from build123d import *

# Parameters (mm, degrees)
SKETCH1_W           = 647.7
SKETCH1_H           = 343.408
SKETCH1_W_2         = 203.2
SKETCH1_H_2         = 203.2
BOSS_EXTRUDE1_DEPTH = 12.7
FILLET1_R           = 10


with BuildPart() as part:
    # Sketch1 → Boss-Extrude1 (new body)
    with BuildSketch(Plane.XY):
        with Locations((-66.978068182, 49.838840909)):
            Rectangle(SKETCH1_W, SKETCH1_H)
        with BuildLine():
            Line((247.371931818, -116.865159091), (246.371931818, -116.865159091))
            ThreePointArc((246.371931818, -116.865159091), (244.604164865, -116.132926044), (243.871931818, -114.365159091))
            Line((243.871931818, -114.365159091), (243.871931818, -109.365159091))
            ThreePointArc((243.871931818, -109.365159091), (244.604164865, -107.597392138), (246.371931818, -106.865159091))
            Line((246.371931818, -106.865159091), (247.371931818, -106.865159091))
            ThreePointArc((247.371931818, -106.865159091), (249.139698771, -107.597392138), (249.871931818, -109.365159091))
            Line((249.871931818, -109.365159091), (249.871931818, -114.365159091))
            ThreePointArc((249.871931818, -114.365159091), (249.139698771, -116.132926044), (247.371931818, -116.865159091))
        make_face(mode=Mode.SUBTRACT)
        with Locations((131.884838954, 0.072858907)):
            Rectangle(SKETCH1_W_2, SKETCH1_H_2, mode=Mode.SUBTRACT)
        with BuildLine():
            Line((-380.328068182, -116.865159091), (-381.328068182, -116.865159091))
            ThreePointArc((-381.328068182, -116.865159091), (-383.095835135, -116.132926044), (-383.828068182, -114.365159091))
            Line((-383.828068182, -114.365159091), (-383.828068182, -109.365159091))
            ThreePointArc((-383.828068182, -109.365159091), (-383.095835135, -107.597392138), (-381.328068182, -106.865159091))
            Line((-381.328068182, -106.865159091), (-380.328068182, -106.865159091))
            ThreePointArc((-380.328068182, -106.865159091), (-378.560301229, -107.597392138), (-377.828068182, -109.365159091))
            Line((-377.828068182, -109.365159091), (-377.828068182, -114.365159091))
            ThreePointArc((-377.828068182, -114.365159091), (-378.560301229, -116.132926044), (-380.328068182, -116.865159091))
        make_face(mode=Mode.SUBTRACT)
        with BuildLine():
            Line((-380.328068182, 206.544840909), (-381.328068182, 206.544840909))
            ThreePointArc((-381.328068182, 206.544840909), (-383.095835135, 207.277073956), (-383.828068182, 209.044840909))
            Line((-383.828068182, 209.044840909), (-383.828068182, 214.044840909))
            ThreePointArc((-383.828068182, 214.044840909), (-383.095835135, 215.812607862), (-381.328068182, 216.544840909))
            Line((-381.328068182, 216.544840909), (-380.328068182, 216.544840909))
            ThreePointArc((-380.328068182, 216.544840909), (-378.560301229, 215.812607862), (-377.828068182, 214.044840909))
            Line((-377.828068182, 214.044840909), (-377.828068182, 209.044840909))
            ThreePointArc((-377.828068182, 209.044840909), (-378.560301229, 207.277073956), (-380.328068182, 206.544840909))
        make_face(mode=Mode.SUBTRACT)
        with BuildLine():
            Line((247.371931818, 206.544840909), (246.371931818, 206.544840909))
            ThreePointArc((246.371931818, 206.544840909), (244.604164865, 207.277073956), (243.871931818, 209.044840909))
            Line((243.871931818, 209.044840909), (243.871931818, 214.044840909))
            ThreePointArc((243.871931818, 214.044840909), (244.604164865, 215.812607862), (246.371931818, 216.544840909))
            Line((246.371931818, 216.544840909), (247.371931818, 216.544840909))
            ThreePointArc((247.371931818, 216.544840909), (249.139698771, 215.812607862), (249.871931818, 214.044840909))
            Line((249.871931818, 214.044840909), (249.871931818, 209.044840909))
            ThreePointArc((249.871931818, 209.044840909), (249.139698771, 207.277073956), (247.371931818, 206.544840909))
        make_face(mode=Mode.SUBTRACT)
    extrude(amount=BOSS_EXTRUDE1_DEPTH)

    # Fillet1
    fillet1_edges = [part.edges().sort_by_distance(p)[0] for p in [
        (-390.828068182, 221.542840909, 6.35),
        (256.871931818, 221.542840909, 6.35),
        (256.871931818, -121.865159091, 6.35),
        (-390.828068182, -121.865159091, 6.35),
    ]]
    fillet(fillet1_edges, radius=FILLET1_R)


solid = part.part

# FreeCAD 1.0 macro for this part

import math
import FreeCAD as App
import Part
import Sketcher
Q = App.Units.Quantity


def edges_at(feature, points):
    """Names of the edges that pass closest to the given points."""
    edges = feature.Shape.Edges
    near = lambda p: min(range(len(edges)), key=lambda i: edges[i].distToShape(Part.Vertex(*p))[0])
    return sorted({f"Edge{near(p) + 1}" for p in points})


def add_polygon(sketch, points):
    """Adds a closed chain of lines whose ends are joined by coincident constraints."""
    first, n = sketch.GeometryCount, len(points)
    for a, b in zip(points, points[1:] + points[:1]):
        sketch.addGeometry(Part.LineSegment(App.Vector(*a, 0), App.Vector(*b, 0)), False)
    for i in range(n):
        sketch.addConstraint(Sketcher.Constraint("Coincident", first + i, 2, first + (i + 1) % n, 1))

doc = App.newDocument("Part")
body = doc.addObject("PartDesign::Body", "Body")

# Sketch on XY plane
sketch1 = body.newObject("Sketcher::SketchObject", "Sketch")
sketch1.AttachmentSupport = (doc.getObject("XY_Plane"), [""])
sketch1.MapMode = "FlatFace"
add_polygon(sketch1, [(-390.8, 221.5), (-390.8, -121.9), (256.9, -121.9), (256.9, 221.5)])  # lines 0-3
sketch1.addGeometry(Part.ArcOfCircle(Part.Circle(App.Vector(-380.3, -114.4, 0), App.Vector(0, 0, 1), 2.5), math.radians(-90), math.radians(0)), False)  # 4
sketch1.addGeometry(Part.LineSegment(App.Vector(-380.3, -116.9, 0), App.Vector(-381.3, -116.9, 0)), False)  # 5
sketch1.addGeometry(Part.ArcOfCircle(Part.Circle(App.Vector(-381.3, -114.4, 0), App.Vector(0, 0, 1), 2.5), math.radians(180), math.radians(270)), False)  # 6
sketch1.addGeometry(Part.LineSegment(App.Vector(-383.8, -114.4, 0), App.Vector(-383.8, -109.4, 0)), False)  # 7
sketch1.addGeometry(Part.ArcOfCircle(Part.Circle(App.Vector(-381.3, -109.4, 0), App.Vector(0, 0, 1), 2.5), math.radians(90), math.radians(180)), False)  # 8
sketch1.addGeometry(Part.LineSegment(App.Vector(-381.3, -106.9, 0), App.Vector(-380.3, -106.9, 0)), False)  # 9
sketch1.addGeometry(Part.ArcOfCircle(Part.Circle(App.Vector(-380.3, -109.4, 0), App.Vector(0, 0, 1), 2.5), math.radians(0), math.radians(90)), False)  # 10
sketch1.addGeometry(Part.LineSegment(App.Vector(-377.8, -109.4, 0), App.Vector(-377.8, -114.4, 0)), False)  # 11
sketch1.addGeometry(Part.ArcOfCircle(Part.Circle(App.Vector(247.4, -114.4, 0), App.Vector(0, 0, 1), 2.5), math.radians(-90), math.radians(0)), False)  # 12
sketch1.addGeometry(Part.LineSegment(App.Vector(247.4, -116.9, 0), App.Vector(246.4, -116.9, 0)), False)  # 13
sketch1.addGeometry(Part.ArcOfCircle(Part.Circle(App.Vector(246.4, -114.4, 0), App.Vector(0, 0, 1), 2.5), math.radians(180), math.radians(270)), False)  # 14
sketch1.addGeometry(Part.LineSegment(App.Vector(243.9, -114.4, 0), App.Vector(243.9, -109.4, 0)), False)  # 15
sketch1.addGeometry(Part.ArcOfCircle(Part.Circle(App.Vector(246.4, -109.4, 0), App.Vector(0, 0, 1), 2.5), math.radians(90), math.radians(180)), False)  # 16
sketch1.addGeometry(Part.LineSegment(App.Vector(246.4, -106.9, 0), App.Vector(247.4, -106.9, 0)), False)  # 17
sketch1.addGeometry(Part.ArcOfCircle(Part.Circle(App.Vector(247.4, -109.4, 0), App.Vector(0, 0, 1), 2.5), math.radians(0), math.radians(90)), False)  # 18
sketch1.addGeometry(Part.LineSegment(App.Vector(249.9, -109.4, 0), App.Vector(249.9, -114.4, 0)), False)  # 19
add_polygon(sketch1, [(233.5, -101.5), (30.3, -101.5), (30.3, 101.7), (233.5, 101.7)])  # lines 20-23
sketch1.addGeometry(Part.ArcOfCircle(Part.Circle(App.Vector(-380.3, 209, 0), App.Vector(0, 0, 1), 2.5), math.radians(-90), math.radians(0)), False)  # 24
sketch1.addGeometry(Part.LineSegment(App.Vector(-380.3, 206.5, 0), App.Vector(-381.3, 206.5, 0)), False)  # 25
sketch1.addGeometry(Part.ArcOfCircle(Part.Circle(App.Vector(-381.3, 209, 0), App.Vector(0, 0, 1), 2.5), math.radians(180), math.radians(270)), False)  # 26
sketch1.addGeometry(Part.LineSegment(App.Vector(-383.8, 209, 0), App.Vector(-383.8, 214, 0)), False)  # 27
sketch1.addGeometry(Part.ArcOfCircle(Part.Circle(App.Vector(-381.3, 214, 0), App.Vector(0, 0, 1), 2.5), math.radians(90), math.radians(180)), False)  # 28
sketch1.addGeometry(Part.LineSegment(App.Vector(-381.3, 216.5, 0), App.Vector(-380.3, 216.5, 0)), False)  # 29
sketch1.addGeometry(Part.ArcOfCircle(Part.Circle(App.Vector(-380.3, 214, 0), App.Vector(0, 0, 1), 2.5), math.radians(0), math.radians(90)), False)  # 30
sketch1.addGeometry(Part.LineSegment(App.Vector(-377.8, 214, 0), App.Vector(-377.8, 209, 0)), False)  # 31
sketch1.addGeometry(Part.ArcOfCircle(Part.Circle(App.Vector(247.4, 209, 0), App.Vector(0, 0, 1), 2.5), math.radians(-90), math.radians(0)), False)  # 32
sketch1.addGeometry(Part.LineSegment(App.Vector(247.4, 206.5, 0), App.Vector(246.4, 206.5, 0)), False)  # 33
sketch1.addGeometry(Part.ArcOfCircle(Part.Circle(App.Vector(246.4, 209, 0), App.Vector(0, 0, 1), 2.5), math.radians(180), math.radians(270)), False)  # 34
sketch1.addGeometry(Part.LineSegment(App.Vector(243.9, 209, 0), App.Vector(243.9, 214, 0)), False)  # 35
sketch1.addGeometry(Part.ArcOfCircle(Part.Circle(App.Vector(246.4, 214, 0), App.Vector(0, 0, 1), 2.5), math.radians(90), math.radians(180)), False)  # 36
sketch1.addGeometry(Part.LineSegment(App.Vector(246.4, 216.5, 0), App.Vector(247.4, 216.5, 0)), False)  # 37
sketch1.addGeometry(Part.ArcOfCircle(Part.Circle(App.Vector(247.4, 214, 0), App.Vector(0, 0, 1), 2.5), math.radians(0), math.radians(90)), False)  # 38
sketch1.addGeometry(Part.LineSegment(App.Vector(249.9, 214, 0), App.Vector(249.9, 209, 0)), False)  # 39
sketch1.addConstraint(Sketcher.Constraint("Tangent", 4, 1, 5, 1))
sketch1.addConstraint(Sketcher.Constraint("Tangent", 5, 2, 6, 2))
sketch1.addConstraint(Sketcher.Constraint("Tangent", 6, 1, 7, 1))
sketch1.addConstraint(Sketcher.Constraint("Tangent", 7, 2, 8, 2))
sketch1.addConstraint(Sketcher.Constraint("Tangent", 8, 1, 9, 1))
sketch1.addConstraint(Sketcher.Constraint("Tangent", 9, 2, 10, 2))
sketch1.addConstraint(Sketcher.Constraint("Tangent", 10, 1, 11, 1))
sketch1.addConstraint(Sketcher.Constraint("Tangent", 11, 2, 4, 2))
sketch1.addConstraint(Sketcher.Constraint("Tangent", 12, 1, 13, 1))
sketch1.addConstraint(Sketcher.Constraint("Tangent", 13, 2, 14, 2))
sketch1.addConstraint(Sketcher.Constraint("Tangent", 14, 1, 15, 1))
sketch1.addConstraint(Sketcher.Constraint("Tangent", 15, 2, 16, 2))
sketch1.addConstraint(Sketcher.Constraint("Tangent", 16, 1, 17, 1))
sketch1.addConstraint(Sketcher.Constraint("Tangent", 17, 2, 18, 2))
sketch1.addConstraint(Sketcher.Constraint("Tangent", 18, 1, 19, 1))
sketch1.addConstraint(Sketcher.Constraint("Tangent", 19, 2, 12, 2))
sketch1.addConstraint(Sketcher.Constraint("Tangent", 24, 1, 25, 1))
sketch1.addConstraint(Sketcher.Constraint("Tangent", 25, 2, 26, 2))
sketch1.addConstraint(Sketcher.Constraint("Tangent", 26, 1, 27, 1))
sketch1.addConstraint(Sketcher.Constraint("Tangent", 27, 2, 28, 2))
sketch1.addConstraint(Sketcher.Constraint("Tangent", 28, 1, 29, 1))
sketch1.addConstraint(Sketcher.Constraint("Tangent", 29, 2, 30, 2))
sketch1.addConstraint(Sketcher.Constraint("Tangent", 30, 1, 31, 1))
sketch1.addConstraint(Sketcher.Constraint("Tangent", 31, 2, 24, 2))
sketch1.addConstraint(Sketcher.Constraint("Tangent", 32, 1, 33, 1))
sketch1.addConstraint(Sketcher.Constraint("Tangent", 33, 2, 34, 2))
sketch1.addConstraint(Sketcher.Constraint("Tangent", 34, 1, 35, 1))
sketch1.addConstraint(Sketcher.Constraint("Tangent", 35, 2, 36, 2))
sketch1.addConstraint(Sketcher.Constraint("Tangent", 36, 1, 37, 1))
sketch1.addConstraint(Sketcher.Constraint("Tangent", 37, 2, 38, 2))
sketch1.addConstraint(Sketcher.Constraint("Tangent", 38, 1, 39, 1))
sketch1.addConstraint(Sketcher.Constraint("Tangent", 39, 2, 32, 2))
sketch1.addConstraint(Sketcher.Constraint("Vertical", 0))
sketch1.addConstraint(Sketcher.Constraint("Horizontal", 1))
sketch1.addConstraint(Sketcher.Constraint("Vertical", 2))
sketch1.addConstraint(Sketcher.Constraint("Horizontal", 3))
sketch1.addConstraint(Sketcher.Constraint("Horizontal", 5))
sketch1.addConstraint(Sketcher.Constraint("Vertical", 7))
sketch1.addConstraint(Sketcher.Constraint("Horizontal", 9))
sketch1.addConstraint(Sketcher.Constraint("Vertical", 11))
sketch1.addConstraint(Sketcher.Constraint("Horizontal", 13))
sketch1.addConstraint(Sketcher.Constraint("Vertical", 15))
sketch1.addConstraint(Sketcher.Constraint("Horizontal", 17))
sketch1.addConstraint(Sketcher.Constraint("Vertical", 19))
sketch1.addConstraint(Sketcher.Constraint("Horizontal", 20))
sketch1.addConstraint(Sketcher.Constraint("Vertical", 21))
sketch1.addConstraint(Sketcher.Constraint("Horizontal", 22))
sketch1.addConstraint(Sketcher.Constraint("Vertical", 23))
sketch1.addConstraint(Sketcher.Constraint("Horizontal", 25))
sketch1.addConstraint(Sketcher.Constraint("Vertical", 27))
sketch1.addConstraint(Sketcher.Constraint("Horizontal", 29))
sketch1.addConstraint(Sketcher.Constraint("Vertical", 31))
sketch1.addConstraint(Sketcher.Constraint("Horizontal", 33))
sketch1.addConstraint(Sketcher.Constraint("Vertical", 35))
sketch1.addConstraint(Sketcher.Constraint("Horizontal", 37))
sketch1.addConstraint(Sketcher.Constraint("Vertical", 39))
sketch1.addConstraint(Sketcher.Constraint("Equal", 4, 6))
sketch1.addConstraint(Sketcher.Constraint("Equal", 6, 8))
sketch1.addConstraint(Sketcher.Constraint("Equal", 8, 10))
sketch1.addConstraint(Sketcher.Constraint("Equal", 10, 12))
sketch1.addConstraint(Sketcher.Constraint("Equal", 12, 14))
sketch1.addConstraint(Sketcher.Constraint("Equal", 14, 16))
sketch1.addConstraint(Sketcher.Constraint("Equal", 16, 18))
sketch1.addConstraint(Sketcher.Constraint("Equal", 18, 24))
sketch1.addConstraint(Sketcher.Constraint("Equal", 24, 26))
sketch1.addConstraint(Sketcher.Constraint("Equal", 26, 28))
sketch1.addConstraint(Sketcher.Constraint("Equal", 28, 30))
sketch1.addConstraint(Sketcher.Constraint("Equal", 30, 32))
sketch1.addConstraint(Sketcher.Constraint("Equal", 32, 34))
sketch1.addConstraint(Sketcher.Constraint("Equal", 34, 36))
sketch1.addConstraint(Sketcher.Constraint("Equal", 36, 38))
sketch1.addConstraint(Sketcher.Constraint("Horizontal", 6, 3, 12, 3))
sketch1.addConstraint(Sketcher.Constraint("Horizontal", 10, 3, 16, 3))
sketch1.addConstraint(Sketcher.Constraint("Horizontal", 26, 3, 32, 3))
sketch1.addConstraint(Sketcher.Constraint("Horizontal", 30, 3, 36, 3))
sketch1.addConstraint(Sketcher.Constraint("Vertical", 10, 3, 24, 3))
sketch1.addConstraint(Sketcher.Constraint("Vertical", 8, 3, 26, 3))
sketch1.addConstraint(Sketcher.Constraint("Vertical", 18, 3, 32, 3))
sketch1.addConstraint(Sketcher.Constraint("Vertical", 16, 3, 34, 3))
sketch1.addConstraint(Sketcher.Constraint("Equal", 9, 13))
sketch1.addConstraint(Sketcher.Constraint("Equal", 22, 21))
sketch1.addConstraint(Sketcher.Constraint("Equal", 19, 27))
sketch1.addConstraint(Sketcher.Constraint("DistanceX", 20, 2, 20, 1, Q("8 in")))
sketch1.addConstraint(Sketcher.Constraint("DistanceX", 1, 1, 1, 2, Q("25.5 in")))
sketch1.addConstraint(Sketcher.Constraint("DistanceY", 0, 2, 0, 1, Q("13.52 in")))
sketch1.addConstraint(Sketcher.Constraint("Radius", 4, 2.5))
sketch1.addConstraint(Sketcher.Constraint("DistanceX", 5, 2, 5, 1, 1.0))
sketch1.addConstraint(Sketcher.Constraint("DistanceY", 7, 1, 7, 2, 5.0))
sketch1.addConstraint(Sketcher.Constraint("DistanceX", 4, 3, 12, 3, 627.7))
sketch1.addConstraint(Sketcher.Constraint("DistanceY", 10, 3, 24, 3, 318.41))
sketch1.addConstraint(Sketcher.Constraint("DistanceX", 0, 2, 6, 3, 9.5))
sketch1.addConstraint(Sketcher.Constraint("DistanceY", 0, 2, 6, 3, 7.5))
sketch1.addConstraint(Sketcher.Constraint("DistanceX", 4, 3, -1, 1, 380.328068))
sketch1.addConstraint(Sketcher.Constraint("DistanceY", 4, 3, -1, 1, 114.365159))
sketch1.addConstraint(Sketcher.Constraint("DistanceX", -1, 1, 20, 2, 30.284839))
sketch1.addConstraint(Sketcher.Constraint("DistanceY", 20, 2, -1, 1, 101.527141))
pad1 = body.newObject("PartDesign::Pad", "Pad")
pad1.Profile = sketch1
pad1.Length = Q("0.5 in")
doc.recompute()

fillet = body.newObject("PartDesign::Fillet", "Fillet")
fillet.Base = (pad1, edges_at(pad1, [
    (-390.828, 221.543, 6.35),
    (256.872, 221.543, 6.35),
    (256.872, -121.865, 6.35),
    (-390.828, -121.865, 6.35),
]))
fillet.Radius = 10

doc.recompute()
